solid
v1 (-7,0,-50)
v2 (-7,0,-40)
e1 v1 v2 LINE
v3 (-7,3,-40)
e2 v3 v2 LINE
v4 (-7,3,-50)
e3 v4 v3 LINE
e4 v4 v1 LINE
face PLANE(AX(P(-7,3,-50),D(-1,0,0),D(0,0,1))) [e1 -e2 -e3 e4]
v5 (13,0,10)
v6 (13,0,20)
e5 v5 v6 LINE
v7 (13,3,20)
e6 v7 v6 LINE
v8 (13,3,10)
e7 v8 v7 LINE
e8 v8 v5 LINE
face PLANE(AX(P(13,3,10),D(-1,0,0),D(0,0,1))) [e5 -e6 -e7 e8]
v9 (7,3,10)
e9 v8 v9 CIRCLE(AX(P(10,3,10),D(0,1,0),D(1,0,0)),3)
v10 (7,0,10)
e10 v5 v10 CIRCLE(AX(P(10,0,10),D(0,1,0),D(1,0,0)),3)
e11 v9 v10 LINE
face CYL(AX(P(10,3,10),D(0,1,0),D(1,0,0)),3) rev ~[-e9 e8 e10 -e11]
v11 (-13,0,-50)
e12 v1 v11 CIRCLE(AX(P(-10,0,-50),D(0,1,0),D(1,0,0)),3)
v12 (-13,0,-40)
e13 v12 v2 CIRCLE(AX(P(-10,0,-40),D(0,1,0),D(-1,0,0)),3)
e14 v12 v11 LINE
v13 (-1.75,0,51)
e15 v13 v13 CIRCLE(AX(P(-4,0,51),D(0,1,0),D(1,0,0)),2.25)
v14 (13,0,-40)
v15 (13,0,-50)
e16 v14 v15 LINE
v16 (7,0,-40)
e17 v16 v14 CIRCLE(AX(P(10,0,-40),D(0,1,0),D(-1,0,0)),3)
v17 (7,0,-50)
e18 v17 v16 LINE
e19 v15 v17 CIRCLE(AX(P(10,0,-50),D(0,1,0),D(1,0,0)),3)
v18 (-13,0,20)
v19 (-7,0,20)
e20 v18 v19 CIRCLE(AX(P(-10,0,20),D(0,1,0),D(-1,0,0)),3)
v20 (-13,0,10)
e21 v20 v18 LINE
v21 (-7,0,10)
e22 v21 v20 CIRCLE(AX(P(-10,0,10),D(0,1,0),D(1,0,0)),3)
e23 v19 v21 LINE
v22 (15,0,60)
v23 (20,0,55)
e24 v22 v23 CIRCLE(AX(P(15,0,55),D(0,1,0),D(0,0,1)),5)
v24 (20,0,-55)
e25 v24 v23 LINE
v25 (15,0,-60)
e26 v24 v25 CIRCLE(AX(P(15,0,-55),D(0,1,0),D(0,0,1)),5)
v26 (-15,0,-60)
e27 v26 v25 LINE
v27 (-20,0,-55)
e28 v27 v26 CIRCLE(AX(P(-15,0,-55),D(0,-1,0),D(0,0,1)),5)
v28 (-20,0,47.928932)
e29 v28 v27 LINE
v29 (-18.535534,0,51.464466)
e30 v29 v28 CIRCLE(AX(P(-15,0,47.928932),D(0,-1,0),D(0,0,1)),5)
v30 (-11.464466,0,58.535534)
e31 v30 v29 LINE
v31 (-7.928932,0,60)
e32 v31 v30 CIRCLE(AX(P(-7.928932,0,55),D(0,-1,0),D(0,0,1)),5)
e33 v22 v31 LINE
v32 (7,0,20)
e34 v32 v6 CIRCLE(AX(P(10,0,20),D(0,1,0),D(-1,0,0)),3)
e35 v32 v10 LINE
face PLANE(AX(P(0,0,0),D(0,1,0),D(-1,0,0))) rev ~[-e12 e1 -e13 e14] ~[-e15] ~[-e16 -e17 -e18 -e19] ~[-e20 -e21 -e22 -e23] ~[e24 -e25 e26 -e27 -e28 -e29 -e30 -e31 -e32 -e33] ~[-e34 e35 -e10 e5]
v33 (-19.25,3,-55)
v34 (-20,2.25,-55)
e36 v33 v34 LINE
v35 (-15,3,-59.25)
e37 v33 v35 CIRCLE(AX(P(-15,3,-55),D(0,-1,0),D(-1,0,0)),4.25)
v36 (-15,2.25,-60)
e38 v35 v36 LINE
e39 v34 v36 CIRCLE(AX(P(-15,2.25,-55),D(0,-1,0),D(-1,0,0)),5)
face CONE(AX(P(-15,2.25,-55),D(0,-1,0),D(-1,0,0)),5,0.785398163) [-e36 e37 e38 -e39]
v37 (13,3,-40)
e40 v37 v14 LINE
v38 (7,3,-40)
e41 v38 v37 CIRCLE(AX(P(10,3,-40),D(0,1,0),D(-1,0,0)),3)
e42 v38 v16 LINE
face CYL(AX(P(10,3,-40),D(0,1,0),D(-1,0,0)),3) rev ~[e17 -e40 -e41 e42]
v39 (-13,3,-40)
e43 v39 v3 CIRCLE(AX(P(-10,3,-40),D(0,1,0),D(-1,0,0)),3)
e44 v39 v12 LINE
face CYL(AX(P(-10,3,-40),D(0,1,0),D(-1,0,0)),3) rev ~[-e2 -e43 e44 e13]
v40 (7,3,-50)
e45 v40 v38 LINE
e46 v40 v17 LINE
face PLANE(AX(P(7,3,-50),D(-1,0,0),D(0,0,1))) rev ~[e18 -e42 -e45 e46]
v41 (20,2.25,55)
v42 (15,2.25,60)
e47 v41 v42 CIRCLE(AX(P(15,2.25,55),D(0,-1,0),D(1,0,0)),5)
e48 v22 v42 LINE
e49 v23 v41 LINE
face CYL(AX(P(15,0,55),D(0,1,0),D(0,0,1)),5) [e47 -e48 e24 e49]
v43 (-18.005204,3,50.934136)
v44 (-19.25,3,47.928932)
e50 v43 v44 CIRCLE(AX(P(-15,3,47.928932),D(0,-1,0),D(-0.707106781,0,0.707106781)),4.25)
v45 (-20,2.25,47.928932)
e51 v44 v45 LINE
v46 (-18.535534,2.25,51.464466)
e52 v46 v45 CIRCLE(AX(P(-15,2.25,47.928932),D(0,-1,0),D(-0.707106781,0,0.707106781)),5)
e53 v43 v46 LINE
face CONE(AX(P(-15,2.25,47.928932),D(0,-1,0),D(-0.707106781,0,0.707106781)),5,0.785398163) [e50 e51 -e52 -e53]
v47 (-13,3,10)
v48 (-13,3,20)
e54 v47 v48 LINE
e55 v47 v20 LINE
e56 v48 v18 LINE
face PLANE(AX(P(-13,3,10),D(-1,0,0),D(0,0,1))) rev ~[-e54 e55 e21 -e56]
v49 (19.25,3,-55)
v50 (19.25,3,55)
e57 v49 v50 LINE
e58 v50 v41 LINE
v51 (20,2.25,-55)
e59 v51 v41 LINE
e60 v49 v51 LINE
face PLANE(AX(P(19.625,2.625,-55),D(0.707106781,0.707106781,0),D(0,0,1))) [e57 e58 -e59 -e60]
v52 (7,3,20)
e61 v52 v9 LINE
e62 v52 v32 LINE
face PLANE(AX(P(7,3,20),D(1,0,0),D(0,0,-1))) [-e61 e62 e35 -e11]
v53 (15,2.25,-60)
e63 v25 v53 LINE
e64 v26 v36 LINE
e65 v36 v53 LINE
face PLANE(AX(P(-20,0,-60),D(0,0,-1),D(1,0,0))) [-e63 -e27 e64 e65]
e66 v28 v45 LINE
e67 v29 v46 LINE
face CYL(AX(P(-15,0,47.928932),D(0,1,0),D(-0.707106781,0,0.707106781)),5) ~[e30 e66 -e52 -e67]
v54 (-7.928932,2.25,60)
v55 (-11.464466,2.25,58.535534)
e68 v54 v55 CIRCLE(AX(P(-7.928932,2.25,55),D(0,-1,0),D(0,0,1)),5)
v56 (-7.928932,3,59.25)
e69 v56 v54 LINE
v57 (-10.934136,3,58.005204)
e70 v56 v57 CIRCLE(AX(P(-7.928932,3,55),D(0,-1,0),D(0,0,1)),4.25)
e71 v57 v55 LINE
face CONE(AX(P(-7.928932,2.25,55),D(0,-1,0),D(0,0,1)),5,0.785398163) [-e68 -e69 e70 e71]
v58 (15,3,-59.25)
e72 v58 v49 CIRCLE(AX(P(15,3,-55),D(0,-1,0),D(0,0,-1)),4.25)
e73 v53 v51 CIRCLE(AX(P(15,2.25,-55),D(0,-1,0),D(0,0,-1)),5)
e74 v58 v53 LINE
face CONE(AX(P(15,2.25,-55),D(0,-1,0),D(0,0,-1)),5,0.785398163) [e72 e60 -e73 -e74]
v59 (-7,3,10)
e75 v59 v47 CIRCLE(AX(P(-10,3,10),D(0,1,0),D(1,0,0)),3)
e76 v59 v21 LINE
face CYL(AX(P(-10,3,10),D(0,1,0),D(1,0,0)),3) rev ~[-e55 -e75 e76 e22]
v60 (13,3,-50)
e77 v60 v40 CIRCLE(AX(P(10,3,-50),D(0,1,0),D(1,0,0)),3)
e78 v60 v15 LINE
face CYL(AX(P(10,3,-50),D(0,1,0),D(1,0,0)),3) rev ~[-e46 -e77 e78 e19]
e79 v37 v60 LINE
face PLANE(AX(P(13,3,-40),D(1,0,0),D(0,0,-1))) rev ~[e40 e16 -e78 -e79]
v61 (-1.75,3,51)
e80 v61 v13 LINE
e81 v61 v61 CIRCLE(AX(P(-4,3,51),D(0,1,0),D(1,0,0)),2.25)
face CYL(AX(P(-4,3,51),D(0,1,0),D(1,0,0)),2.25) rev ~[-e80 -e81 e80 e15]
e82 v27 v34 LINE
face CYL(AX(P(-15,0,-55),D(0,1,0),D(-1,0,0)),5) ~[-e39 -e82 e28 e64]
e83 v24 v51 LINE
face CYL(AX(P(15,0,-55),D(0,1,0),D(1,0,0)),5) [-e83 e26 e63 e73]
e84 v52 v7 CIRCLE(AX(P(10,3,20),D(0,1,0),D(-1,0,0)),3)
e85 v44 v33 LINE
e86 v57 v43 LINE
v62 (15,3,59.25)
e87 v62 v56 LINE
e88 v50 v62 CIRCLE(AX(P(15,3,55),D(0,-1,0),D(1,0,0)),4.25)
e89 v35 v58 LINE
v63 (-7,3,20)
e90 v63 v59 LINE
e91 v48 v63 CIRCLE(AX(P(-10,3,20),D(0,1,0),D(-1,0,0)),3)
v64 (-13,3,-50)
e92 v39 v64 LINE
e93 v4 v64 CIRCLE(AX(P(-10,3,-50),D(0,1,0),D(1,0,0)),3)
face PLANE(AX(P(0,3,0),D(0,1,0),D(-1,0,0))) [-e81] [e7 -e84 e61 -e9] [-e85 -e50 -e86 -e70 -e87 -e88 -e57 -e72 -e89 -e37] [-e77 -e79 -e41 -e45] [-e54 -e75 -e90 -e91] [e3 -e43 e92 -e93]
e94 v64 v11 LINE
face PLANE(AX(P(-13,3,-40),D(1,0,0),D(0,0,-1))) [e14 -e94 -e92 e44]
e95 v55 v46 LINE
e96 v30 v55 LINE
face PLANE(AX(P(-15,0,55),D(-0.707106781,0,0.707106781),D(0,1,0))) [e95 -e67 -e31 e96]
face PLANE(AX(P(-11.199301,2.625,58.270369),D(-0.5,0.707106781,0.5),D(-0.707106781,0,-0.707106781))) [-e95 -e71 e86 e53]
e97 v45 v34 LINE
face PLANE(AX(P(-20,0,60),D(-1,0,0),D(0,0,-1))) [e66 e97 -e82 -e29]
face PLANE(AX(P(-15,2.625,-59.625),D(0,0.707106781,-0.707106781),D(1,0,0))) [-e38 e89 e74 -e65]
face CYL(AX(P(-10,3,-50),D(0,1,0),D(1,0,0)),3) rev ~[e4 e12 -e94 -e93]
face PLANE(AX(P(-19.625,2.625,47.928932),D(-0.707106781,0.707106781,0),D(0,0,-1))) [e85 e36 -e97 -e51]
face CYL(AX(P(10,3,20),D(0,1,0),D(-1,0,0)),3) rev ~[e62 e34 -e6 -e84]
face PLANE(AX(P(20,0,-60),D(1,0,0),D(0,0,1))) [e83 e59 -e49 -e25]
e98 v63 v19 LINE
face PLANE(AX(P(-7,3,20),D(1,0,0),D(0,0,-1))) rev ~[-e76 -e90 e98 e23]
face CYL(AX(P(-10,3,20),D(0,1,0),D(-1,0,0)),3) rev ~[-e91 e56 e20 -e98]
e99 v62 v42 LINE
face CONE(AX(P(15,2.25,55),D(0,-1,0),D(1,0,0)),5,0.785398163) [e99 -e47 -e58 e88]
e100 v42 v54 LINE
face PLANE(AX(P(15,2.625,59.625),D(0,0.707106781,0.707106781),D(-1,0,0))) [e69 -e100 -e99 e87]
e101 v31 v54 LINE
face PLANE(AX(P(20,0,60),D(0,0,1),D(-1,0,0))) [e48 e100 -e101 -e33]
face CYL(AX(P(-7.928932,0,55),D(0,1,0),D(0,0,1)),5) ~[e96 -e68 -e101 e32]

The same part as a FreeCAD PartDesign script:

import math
import FreeCAD as App
import Part
import Sketcher
from FreeCAD import Vector


def edges_at(feature, points):
    """Names of the edges that pass closest to the given points."""
    edges = feature.Shape.Edges
    near = lambda p: min(range(len(edges)), key=lambda i: edges[i].distToShape(Part.Vertex(*p))[0])
    return sorted({f"Edge{near(p) + 1}" for p in points})

doc = App.newDocument("Part")
body = doc.addObject("PartDesign::Body", "Body")

# Sketch on XZ plane
sketch1 = body.newObject("Sketcher::SketchObject", "Sketch")
sketch1.AttachmentSupport = (doc.getObject("XZ_Plane"), [""])
sketch1.MapMode = "FlatFace"
sketch1.addGeometry([
    Part.LineSegment(Vector(-20, 60, 0), Vector(20, 60, 0)),
    Part.LineSegment(Vector(20, 60, 0), Vector(20, -60, 0)),
    Part.LineSegment(Vector(20, -60, 0), Vector(-20, -60, 0)),
    Part.LineSegment(Vector(-20, -60, 0), Vector(-20, 60, 0)),
], False)
sketch1.addConstraint([
    Sketcher.Constraint("Coincident", 0, 2, 1, 1),
    Sketcher.Constraint("Coincident", 1, 2, 2, 1),
    Sketcher.Constraint("Coincident", 2, 2, 3, 1),
    Sketcher.Constraint("Coincident", 3, 2, 0, 1),
    Sketcher.Constraint("Horizontal", 0),
    Sketcher.Constraint("Vertical", 1),
    Sketcher.Constraint("Horizontal", 2),
    Sketcher.Constraint("Vertical", 3),
    Sketcher.Constraint("Symmetric", 0, 2, 2, 2, -1, 1),
    Sketcher.Constraint("DistanceX", 0, 1, 0, 2, 40.0),
    Sketcher.Constraint("DistanceY", 1, 2, 1, 1, 120.0),
])
pad1 = body.newObject("PartDesign::Pad", "Pad")
pad1.Profile = sketch1
pad1.Length = 3
pad1.Reversed = True

# Sketch on XZ plane
sketch2 = body.newObject("Sketcher::SketchObject", "Sketch001")
sketch2.AttachmentSupport = (doc.getObject("XZ_Plane"), [""])
sketch2.MapMode = "FlatFace"
sketch2.AttachmentOffset = App.Placement(Vector(0, 0, -3), App.Rotation())
sketch2.addGeometry(Part.Circle(Vector(-4, 51, 0), Vector(0, 0, 1), 2.2), False)
sketch2.addConstraint([
    Sketcher.Constraint("Diameter", 0, 4.5),
    Sketcher.Constraint("DistanceX", 0, 3, -1, 1, 4.0),
    Sketcher.Constraint("DistanceY", -1, 1, 0, 3, 51.0),
])
pocket1 = body.newObject("PartDesign::Pocket", "Pocket")
pocket1.Profile = sketch2
pocket1.Length = 3
pocket1.Reversed = True

# Sketch on XZ plane
sketch3 = body.newObject("Sketcher::SketchObject", "Sketch002")
sketch3.AttachmentSupport = (doc.getObject("XZ_Plane"), [""])
sketch3.MapMode = "FlatFace"
sketch3.AttachmentOffset = App.Placement(Vector(0, 0, -3), App.Rotation())
sketch3.addGeometry([
    Part.ArcOfCircle(Part.Circle(Vector(-10, 20, 0), Vector(0, 0, 1), 3), math.radians(0), math.radians(180)),  # 0
    Part.LineSegment(Vector(-7, 20, 0), Vector(-7, 10, 0)),  # 1
    Part.ArcOfCircle(Part.Circle(Vector(-10, 10, 0), Vector(0, 0, 1), 3), math.radians(180), math.radians(360)),  # 2
    Part.LineSegment(Vector(-13, 10, 0), Vector(-13, 20, 0)),  # 3
    Part.LineSegment(Vector(-7, -40, 0), Vector(-7, -50, 0)),  # 4
    Part.ArcOfCircle(Part.Circle(Vector(-10, -50, 0), Vector(0, 0, 1), 3), math.radians(180), math.radians(360)),  # 5
    Part.LineSegment(Vector(-13, -50, 0), Vector(-13, -40, 0)),  # 6
    Part.ArcOfCircle(Part.Circle(Vector(-10, -40, 0), Vector(0, 0, 1), 3), math.radians(0), math.radians(180)),  # 7
    Part.LineSegment(Vector(7, 10, 0), Vector(7, 20, 0)),  # 8
    Part.ArcOfCircle(Part.Circle(Vector(10, 20, 0), Vector(0, 0, 1), 3), math.radians(0), math.radians(180)),  # 9
    Part.LineSegment(Vector(13, 20, 0), Vector(13, 10, 0)),  # 10
    Part.ArcOfCircle(Part.Circle(Vector(10, 10, 0), Vector(0, 0, 1), 3), math.radians(180), math.radians(360)),  # 11
    Part.ArcOfCircle(Part.Circle(Vector(10, -50, 0), Vector(0, 0, 1), 3), math.radians(180), math.radians(360)),  # 12
    Part.LineSegment(Vector(7, -50, 0), Vector(7, -40, 0)),  # 13
    Part.ArcOfCircle(Part.Circle(Vector(10, -40, 0), Vector(0, 0, 1), 3), math.radians(0), math.radians(180)),  # 14
    Part.LineSegment(Vector(13, -40, 0), Vector(13, -50, 0)),  # 15
], False)
sketch3.addConstraint([
    Sketcher.Constraint("Tangent", 0, 1, 1, 1),
    Sketcher.Constraint("Tangent", 1, 2, 2, 2),
    Sketcher.Constraint("Tangent", 2, 1, 3, 1),
    Sketcher.Constraint("Tangent", 3, 2, 0, 2),
    Sketcher.Constraint("Tangent", 4, 2, 5, 2),
    Sketcher.Constraint("Tangent", 5, 1, 6, 1),
    Sketcher.Constraint("Tangent", 6, 2, 7, 2),
    Sketcher.Constraint("Tangent", 7, 1, 4, 1),
    Sketcher.Constraint("Tangent", 8, 2, 9, 2),
    Sketcher.Constraint("Tangent", 9, 1, 10, 1),
    Sketcher.Constraint("Tangent", 10, 2, 11, 2),
    Sketcher.Constraint("Tangent", 11, 1, 8, 1),
    Sketcher.Constraint("Tangent", 12, 1, 13, 1),
    Sketcher.Constraint("Tangent", 13, 2, 14, 2),
    Sketcher.Constraint("Tangent", 14, 1, 15, 1),
    Sketcher.Constraint("Tangent", 15, 2, 12, 2),
    Sketcher.Constraint("Vertical", 1),
    Sketcher.Constraint("Vertical", 3),
    Sketcher.Constraint("Vertical", 4),
    Sketcher.Constraint("Vertical", 6),
    Sketcher.Constraint("Vertical", 8),
    Sketcher.Constraint("Vertical", 10),
    Sketcher.Constraint("Vertical", 13),
    Sketcher.Constraint("Vertical", 15),
    Sketcher.Constraint("Equal", 2, 5),
    Sketcher.Constraint("Equal", 7, 9),
    Sketcher.Constraint("Equal", 11, 12),
    Sketcher.Constraint("Symmetric", 0, 3, 9, 3, -2),
    Sketcher.Constraint("Symmetric", 5, 3, 12, 3, -2),
    Sketcher.Constraint("Horizontal", 2, 3, 11, 3),
    Sketcher.Constraint("Horizontal", 7, 3, 14, 3),
    Sketcher.Constraint("Vertical", 2, 3, 5, 3),
    Sketcher.Constraint("Equal", 3, 4),
    Sketcher.Constraint("Radius", 0, 3.0),
    Sketcher.Constraint("DistanceY", 1, 2, 1, 1, 10.0),
    Sketcher.Constraint("DistanceX", 0, 3, -1, 1, 10.0),
    Sketcher.Constraint("DistanceY", -1, 1, 2, 3, 10.0),
    Sketcher.Constraint("DistanceY", 5, 3, -1, 1, 50.0),
])
pocket2 = body.newObject("PartDesign::Pocket", "Pocket001")
pocket2.Profile = sketch3
pocket2.Length = 3
pocket2.Reversed = True
doc.recompute()

chamfer = body.newObject("PartDesign::Chamfer", "Chamfer")
chamfer.Base = (pocket2, edges_at(pocket2, [(-20, 1.5, 60)]))
chamfer.Size = 10
doc.recompute()

fillet = body.newObject("PartDesign::Fillet", "Fillet")
fillet.Base = (chamfer, edges_at(chamfer, [
    (-10, 1.5, 60),
    (-20, 1.5, 50),
    (20, 1.5, 60),
    (20, 1.5, -60),
    (-20, 1.5, -60),
]))
fillet.Radius = 5
doc.recompute()

chamfer2 = body.newObject("PartDesign::Chamfer", "Chamfer001")
chamfer2.Base = (fillet, edges_at(fillet, [
    (20, 3, 0),
    (18.535, 3, -58.535),
    (0, 3, -60),
    (-18.535, 3, -58.535),
    (-20, 3, -3.535),
    (-19.619, 3, 49.842),
    (-15, 3, 55),
    (-9.842, 3, 59.619),
    (3.535, 3, 60),
    (18.535, 3, 58.535),
]))
chamfer2.Size = 0.75

doc.recompute()
